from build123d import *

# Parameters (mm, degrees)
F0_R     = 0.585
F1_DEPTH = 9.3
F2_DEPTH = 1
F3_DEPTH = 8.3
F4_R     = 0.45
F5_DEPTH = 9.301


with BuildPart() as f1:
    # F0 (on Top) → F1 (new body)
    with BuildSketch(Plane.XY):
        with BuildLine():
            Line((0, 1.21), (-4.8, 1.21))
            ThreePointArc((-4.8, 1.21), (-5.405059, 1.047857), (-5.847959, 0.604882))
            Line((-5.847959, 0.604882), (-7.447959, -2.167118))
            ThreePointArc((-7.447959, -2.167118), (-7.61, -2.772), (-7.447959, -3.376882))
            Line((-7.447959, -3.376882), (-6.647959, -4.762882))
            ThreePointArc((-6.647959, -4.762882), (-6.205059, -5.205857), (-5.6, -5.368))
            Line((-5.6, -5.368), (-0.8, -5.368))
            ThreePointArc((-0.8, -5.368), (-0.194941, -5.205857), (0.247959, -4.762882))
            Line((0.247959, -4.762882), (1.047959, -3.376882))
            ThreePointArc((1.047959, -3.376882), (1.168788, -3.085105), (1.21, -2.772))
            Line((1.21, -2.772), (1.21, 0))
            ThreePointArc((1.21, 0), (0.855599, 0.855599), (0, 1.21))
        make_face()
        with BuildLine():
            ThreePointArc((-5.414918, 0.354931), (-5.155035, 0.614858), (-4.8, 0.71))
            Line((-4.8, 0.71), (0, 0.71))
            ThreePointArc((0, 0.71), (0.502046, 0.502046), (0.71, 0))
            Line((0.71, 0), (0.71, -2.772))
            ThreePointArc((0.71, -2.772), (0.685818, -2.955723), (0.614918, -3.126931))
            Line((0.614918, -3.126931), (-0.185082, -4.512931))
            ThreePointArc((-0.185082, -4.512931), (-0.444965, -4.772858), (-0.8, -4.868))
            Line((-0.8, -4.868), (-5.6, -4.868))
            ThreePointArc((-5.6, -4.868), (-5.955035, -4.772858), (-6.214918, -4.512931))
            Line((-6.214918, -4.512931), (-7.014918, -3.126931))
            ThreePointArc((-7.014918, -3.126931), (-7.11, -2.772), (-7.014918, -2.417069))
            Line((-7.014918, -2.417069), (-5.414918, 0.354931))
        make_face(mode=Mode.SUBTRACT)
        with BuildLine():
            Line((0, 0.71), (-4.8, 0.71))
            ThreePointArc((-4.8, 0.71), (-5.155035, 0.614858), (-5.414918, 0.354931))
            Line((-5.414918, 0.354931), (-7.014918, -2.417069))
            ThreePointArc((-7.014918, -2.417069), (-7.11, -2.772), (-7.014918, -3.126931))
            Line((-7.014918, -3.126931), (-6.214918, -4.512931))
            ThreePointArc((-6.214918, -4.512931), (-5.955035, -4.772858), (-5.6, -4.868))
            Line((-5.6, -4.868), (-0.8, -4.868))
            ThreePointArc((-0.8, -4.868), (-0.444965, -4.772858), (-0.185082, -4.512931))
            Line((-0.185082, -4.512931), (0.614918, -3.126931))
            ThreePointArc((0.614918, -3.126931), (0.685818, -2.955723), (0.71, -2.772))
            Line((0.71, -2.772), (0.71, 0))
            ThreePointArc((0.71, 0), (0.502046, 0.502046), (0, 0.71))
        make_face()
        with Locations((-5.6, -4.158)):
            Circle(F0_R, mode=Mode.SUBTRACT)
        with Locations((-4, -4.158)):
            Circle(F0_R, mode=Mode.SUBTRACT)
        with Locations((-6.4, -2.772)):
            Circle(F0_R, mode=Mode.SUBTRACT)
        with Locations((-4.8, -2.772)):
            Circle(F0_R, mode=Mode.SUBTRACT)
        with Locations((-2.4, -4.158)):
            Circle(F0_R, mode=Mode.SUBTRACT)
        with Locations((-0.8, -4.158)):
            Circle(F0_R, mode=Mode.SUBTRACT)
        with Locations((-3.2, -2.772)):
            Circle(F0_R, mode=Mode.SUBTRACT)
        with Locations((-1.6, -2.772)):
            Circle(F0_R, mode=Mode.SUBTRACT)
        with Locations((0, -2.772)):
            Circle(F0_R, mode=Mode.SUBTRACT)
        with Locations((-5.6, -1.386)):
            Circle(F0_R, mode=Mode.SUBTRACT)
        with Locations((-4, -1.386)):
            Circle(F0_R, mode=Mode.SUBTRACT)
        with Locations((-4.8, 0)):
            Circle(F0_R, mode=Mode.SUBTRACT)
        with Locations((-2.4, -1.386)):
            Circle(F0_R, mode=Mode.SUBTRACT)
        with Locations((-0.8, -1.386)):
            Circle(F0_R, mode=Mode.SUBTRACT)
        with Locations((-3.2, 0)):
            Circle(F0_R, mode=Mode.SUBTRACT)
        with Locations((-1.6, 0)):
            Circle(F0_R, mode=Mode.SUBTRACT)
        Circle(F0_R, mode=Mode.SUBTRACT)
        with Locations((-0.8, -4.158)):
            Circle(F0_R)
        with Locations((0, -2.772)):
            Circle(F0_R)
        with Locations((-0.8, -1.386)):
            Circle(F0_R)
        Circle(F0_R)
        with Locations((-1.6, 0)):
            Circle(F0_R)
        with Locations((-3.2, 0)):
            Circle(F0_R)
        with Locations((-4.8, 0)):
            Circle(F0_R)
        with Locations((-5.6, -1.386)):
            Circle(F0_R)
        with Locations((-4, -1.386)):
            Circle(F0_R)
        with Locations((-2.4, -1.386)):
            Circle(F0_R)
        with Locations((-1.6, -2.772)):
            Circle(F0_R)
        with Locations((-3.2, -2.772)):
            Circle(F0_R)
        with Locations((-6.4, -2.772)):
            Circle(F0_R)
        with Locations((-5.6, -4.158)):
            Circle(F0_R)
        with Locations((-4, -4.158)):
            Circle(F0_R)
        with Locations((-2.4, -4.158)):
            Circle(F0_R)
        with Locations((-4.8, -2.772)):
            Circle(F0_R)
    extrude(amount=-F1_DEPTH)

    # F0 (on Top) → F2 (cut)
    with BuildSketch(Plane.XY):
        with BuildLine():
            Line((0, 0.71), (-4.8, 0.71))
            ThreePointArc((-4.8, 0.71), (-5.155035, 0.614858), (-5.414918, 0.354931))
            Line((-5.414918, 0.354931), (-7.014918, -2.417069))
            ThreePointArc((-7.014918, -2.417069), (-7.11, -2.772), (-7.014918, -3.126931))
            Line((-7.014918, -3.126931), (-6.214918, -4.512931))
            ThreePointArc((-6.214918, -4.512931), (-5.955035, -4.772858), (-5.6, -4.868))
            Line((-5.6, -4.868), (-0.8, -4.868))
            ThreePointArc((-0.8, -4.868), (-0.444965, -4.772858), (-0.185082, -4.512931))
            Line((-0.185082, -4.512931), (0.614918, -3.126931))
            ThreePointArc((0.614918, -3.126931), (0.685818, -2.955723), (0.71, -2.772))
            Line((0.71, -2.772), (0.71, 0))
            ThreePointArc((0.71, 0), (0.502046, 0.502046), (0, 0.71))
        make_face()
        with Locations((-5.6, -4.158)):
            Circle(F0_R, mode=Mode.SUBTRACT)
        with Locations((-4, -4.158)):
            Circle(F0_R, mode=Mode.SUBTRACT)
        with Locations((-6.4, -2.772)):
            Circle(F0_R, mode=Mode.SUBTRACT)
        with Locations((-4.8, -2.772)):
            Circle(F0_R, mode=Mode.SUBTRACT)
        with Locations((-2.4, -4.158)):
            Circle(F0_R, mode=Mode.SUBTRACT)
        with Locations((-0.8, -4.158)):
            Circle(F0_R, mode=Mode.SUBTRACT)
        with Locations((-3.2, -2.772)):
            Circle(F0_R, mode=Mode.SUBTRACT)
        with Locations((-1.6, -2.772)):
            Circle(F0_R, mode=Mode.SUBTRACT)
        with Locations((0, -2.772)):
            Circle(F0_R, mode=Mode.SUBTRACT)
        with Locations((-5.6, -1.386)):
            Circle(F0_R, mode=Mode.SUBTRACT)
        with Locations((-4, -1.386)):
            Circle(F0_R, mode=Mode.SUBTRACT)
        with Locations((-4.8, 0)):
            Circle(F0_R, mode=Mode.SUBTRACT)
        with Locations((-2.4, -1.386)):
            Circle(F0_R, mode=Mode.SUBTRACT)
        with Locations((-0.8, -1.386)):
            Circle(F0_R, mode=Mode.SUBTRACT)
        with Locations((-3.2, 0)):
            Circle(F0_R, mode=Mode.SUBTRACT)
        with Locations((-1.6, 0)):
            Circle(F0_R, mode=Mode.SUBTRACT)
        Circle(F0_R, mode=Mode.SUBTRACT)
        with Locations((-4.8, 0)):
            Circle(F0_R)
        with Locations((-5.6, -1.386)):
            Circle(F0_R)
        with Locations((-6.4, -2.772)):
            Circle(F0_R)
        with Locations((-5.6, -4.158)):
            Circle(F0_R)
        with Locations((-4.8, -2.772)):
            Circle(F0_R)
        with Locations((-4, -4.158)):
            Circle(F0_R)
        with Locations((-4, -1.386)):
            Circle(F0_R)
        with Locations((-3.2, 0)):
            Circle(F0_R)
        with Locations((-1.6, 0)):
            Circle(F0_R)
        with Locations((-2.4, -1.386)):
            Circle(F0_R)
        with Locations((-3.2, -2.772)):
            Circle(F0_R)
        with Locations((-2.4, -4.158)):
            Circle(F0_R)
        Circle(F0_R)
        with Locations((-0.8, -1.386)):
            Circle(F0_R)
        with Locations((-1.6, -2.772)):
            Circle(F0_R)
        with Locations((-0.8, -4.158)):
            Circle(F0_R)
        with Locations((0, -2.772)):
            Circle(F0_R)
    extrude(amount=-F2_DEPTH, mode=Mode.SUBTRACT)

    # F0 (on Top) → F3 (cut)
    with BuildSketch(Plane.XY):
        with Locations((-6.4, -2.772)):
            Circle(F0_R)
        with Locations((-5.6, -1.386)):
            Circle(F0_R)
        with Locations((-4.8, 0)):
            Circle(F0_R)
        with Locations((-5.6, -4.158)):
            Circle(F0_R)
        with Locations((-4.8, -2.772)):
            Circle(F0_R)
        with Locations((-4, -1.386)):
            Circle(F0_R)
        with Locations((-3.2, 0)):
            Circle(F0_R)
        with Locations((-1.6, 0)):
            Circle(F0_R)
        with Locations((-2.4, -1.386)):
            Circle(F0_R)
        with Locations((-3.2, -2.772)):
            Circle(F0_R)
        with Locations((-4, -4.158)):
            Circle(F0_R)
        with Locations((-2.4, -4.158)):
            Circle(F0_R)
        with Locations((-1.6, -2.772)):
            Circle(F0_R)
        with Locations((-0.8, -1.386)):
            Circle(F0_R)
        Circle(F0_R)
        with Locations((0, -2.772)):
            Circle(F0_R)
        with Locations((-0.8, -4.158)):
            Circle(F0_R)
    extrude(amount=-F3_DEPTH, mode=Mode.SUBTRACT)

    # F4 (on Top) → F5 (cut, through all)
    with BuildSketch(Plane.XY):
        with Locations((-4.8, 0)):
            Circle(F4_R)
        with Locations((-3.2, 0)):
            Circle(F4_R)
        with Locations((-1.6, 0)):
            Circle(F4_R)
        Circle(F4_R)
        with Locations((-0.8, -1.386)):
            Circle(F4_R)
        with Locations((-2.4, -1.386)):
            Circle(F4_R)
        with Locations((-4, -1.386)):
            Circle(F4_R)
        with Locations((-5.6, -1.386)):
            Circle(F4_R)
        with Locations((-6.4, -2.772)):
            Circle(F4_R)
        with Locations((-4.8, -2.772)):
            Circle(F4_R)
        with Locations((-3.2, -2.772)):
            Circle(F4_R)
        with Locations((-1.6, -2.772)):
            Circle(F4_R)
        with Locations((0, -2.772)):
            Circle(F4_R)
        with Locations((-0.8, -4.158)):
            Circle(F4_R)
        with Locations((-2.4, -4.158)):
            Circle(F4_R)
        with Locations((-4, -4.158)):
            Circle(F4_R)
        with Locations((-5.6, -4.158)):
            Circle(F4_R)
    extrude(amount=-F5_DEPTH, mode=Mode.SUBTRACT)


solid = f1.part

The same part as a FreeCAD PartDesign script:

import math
import FreeCAD as App
import Part
import Sketcher

doc = App.newDocument("Part")
body = doc.addObject("PartDesign::Body", "Body")

sketch1 = doc.addObject("Sketcher::SketchObject", "Sketch")
body.addObject(sketch1)
sketch1.AttachmentSupport = (doc.XY_Plane, [""])
sketch1.MapMode = "FlatFace"
sketch1.addGeometry([
    Part.LineSegment(App.Vector(0, 1.2, 0), App.Vector(-4.8, 1.2, 0)),
    Part.ArcOfCircle(Part.Circle(App.Vector(-4.8, 0, 0), App.Vector(0, 0, 1), 1.2), math.radians(90), math.radians(150)),
    Part.LineSegment(App.Vector(-5.8, 0.6, 0), App.Vector(-7.4, -2.2, 0)),
    Part.ArcOfCircle(Part.Circle(App.Vector(-6.4, -2.8, 0), App.Vector(0, 0, 1), 1.2), math.radians(150), math.radians(210)),
    Part.LineSegment(App.Vector(-7.4, -3.4, 0), App.Vector(-6.6, -4.8, 0)),
    Part.ArcOfCircle(Part.Circle(App.Vector(-5.6, -4.2, 0), App.Vector(0, 0, 1), 1.2), math.radians(-150), math.radians(-90)),
    Part.LineSegment(App.Vector(-5.6, -5.4, 0), App.Vector(-0.8, -5.4, 0)),
    Part.ArcOfCircle(Part.Circle(App.Vector(-0.8, -4.2, 0), App.Vector(0, 0, 1), 1.2), math.radians(-90), math.radians(-30)),
    Part.LineSegment(App.Vector(0.2, -4.8, 0), App.Vector(1, -3.4, 0)),
    Part.ArcOfCircle(Part.Circle(App.Vector(0, -2.8, 0), App.Vector(0, 0, 1), 1.2), math.radians(-30), math.radians(0)),
    Part.LineSegment(App.Vector(1.2, -2.8, 0), App.Vector(1.2, 0, 0)),
    Part.ArcOfCircle(Part.Circle(App.Vector(0, 0, 0), App.Vector(0, 0, 1), 1.2), math.radians(0), math.radians(90)),
], False)
sketch1.addConstraint([
    Sketcher.Constraint("Tangent", 0, 2, 1, 1),
    Sketcher.Constraint("Tangent", 1, 2, 2, 1),
    Sketcher.Constraint("Tangent", 2, 2, 3, 1),
    Sketcher.Constraint("Tangent", 3, 2, 4, 1),
    Sketcher.Constraint("Tangent", 4, 2, 5, 1),
    Sketcher.Constraint("Tangent", 5, 2, 6, 1),
    Sketcher.Constraint("Tangent", 6, 2, 7, 1),
    Sketcher.Constraint("Tangent", 7, 2, 8, 1),
    Sketcher.Constraint("Tangent", 8, 2, 9, 1),
    Sketcher.Constraint("Tangent", 9, 2, 10, 1),
    Sketcher.Constraint("Tangent", 10, 2, 11, 1),
    Sketcher.Constraint("Tangent", 11, 2, 0, 1),
    Sketcher.Constraint("Horizontal", 0),
    Sketcher.Constraint("Horizontal", 6),
    Sketcher.Constraint("Vertical", 10),
    Sketcher.Constraint("Coincident", 11, 3, -1, 1),
    Sketcher.Constraint("Equal", 1, 5),
    Sketcher.Constraint("Equal", 5, 7),
    Sketcher.Constraint("Equal", 7, 9),
    Sketcher.Constraint("Equal", 9, 11),
    Sketcher.Constraint("Parallel", 2, 8),
    Sketcher.Constraint("Horizontal", 3, 3, 9, 3),
    Sketcher.Constraint("Horizontal", 4, 2, 7, 2),
    Sketcher.Constraint("Horizontal", 3, 2, 8, 2),
    Sketcher.Constraint("Equal", 0, 6),
    Sketcher.Constraint("Radius", 1, 1.209999),
    Sketcher.Constraint("DistanceX", 0, 2, 0, 1, 4.8),
    Sketcher.Constraint("DistanceX", 1, 3, 7, 3, 4.000002),
    Sketcher.Constraint("DistanceY", 10, 1, 10, 2, 2.772),
])
pad1 = doc.addObject("PartDesign::Pad", "Pad")
body.addObject(pad1)
pad1.Profile = sketch1
pad1.Length = 9.3
pad1.Reversed = True

sketch2 = doc.addObject("Sketcher::SketchObject", "Sketch001")
body.addObject(sketch2)
sketch2.AttachmentSupport = (doc.XY_Plane, [""])
sketch2.MapMode = "FlatFace"
sketch2.addGeometry([
    Part.LineSegment(App.Vector(0, 0.71, 0), App.Vector(-4.8, 0.71, 0)),
    Part.ArcOfCircle(Part.Circle(App.Vector(-4.8, 0, 0), App.Vector(0, 0, 1), 0.71), math.radians(90), math.radians(150)),
    Part.LineSegment(App.Vector(-5.41, 0.35, 0), App.Vector(-7.01, -2.42, 0)),
    Part.ArcOfCircle(Part.Circle(App.Vector(-6.4, -2.77, 0), App.Vector(0, 0, 1), 0.71), math.radians(150), math.radians(210)),
    Part.LineSegment(App.Vector(-7.01, -3.13, 0), App.Vector(-6.21, -4.51, 0)),
    Part.ArcOfCircle(Part.Circle(App.Vector(-5.6, -4.16, 0), App.Vector(0, 0, 1), 0.71), math.radians(-150), math.radians(-90)),
    Part.LineSegment(App.Vector(-5.6, -4.87, 0), App.Vector(-0.8, -4.87, 0)),
    Part.ArcOfCircle(Part.Circle(App.Vector(-0.8, -4.16, 0), App.Vector(0, 0, 1), 0.71), math.radians(-90), math.radians(-30)),
    Part.LineSegment(App.Vector(-0.19, -4.51, 0), App.Vector(0.61, -3.13, 0)),
    Part.ArcOfCircle(Part.Circle(App.Vector(0, -2.77, 0), App.Vector(0, 0, 1), 0.71), math.radians(-30), math.radians(0)),
    Part.LineSegment(App.Vector(0.71, -2.77, 0), App.Vector(0.71, 0, 0)),
    Part.ArcOfCircle(Part.Circle(App.Vector(0, 0, 0), App.Vector(0, 0, 1), 0.71), math.radians(0), math.radians(90)),
], False)
sketch2.addConstraint([
    Sketcher.Constraint("Tangent", 0, 2, 1, 1),
    Sketcher.Constraint("Tangent", 1, 2, 2, 1),
    Sketcher.Constraint("Tangent", 2, 2, 3, 1),
    Sketcher.Constraint("Tangent", 3, 2, 4, 1),
    Sketcher.Constraint("Tangent", 4, 2, 5, 1),
    Sketcher.Constraint("Tangent", 5, 2, 6, 1),
    Sketcher.Constraint("Tangent", 6, 2, 7, 1),
    Sketcher.Constraint("Tangent", 7, 2, 8, 1),
    Sketcher.Constraint("Coincident", 8, 2, 9, 1),
    Sketcher.Constraint("Coincident", 9, 2, 10, 1),
    Sketcher.Constraint("Tangent", 10, 2, 11, 1),
    Sketcher.Constraint("Tangent", 11, 2, 0, 1),
    Sketcher.Constraint("Horizontal", 0),
    Sketcher.Constraint("Horizontal", 6),
    Sketcher.Constraint("Vertical", 10),
    Sketcher.Constraint("Coincident", 11, 3, -1, 1),
    Sketcher.Constraint("Equal", 1, 3),
    Sketcher.Constraint("Equal", 3, 5),
    Sketcher.Constraint("Equal", 5, 7),
    Sketcher.Constraint("Equal", 7, 11),
    Sketcher.Constraint("Parallel", 2, 8),
    Sketcher.Constraint("Horizontal", 4, 2, 7, 2),
    Sketcher.Constraint("Horizontal", 3, 2, 8, 2),
    Sketcher.Constraint("Horizontal", 3, 3, 9, 2),
    Sketcher.Constraint("Equal", 0, 6),
    Sketcher.Constraint("Radius", 1, 0.709999),
    Sketcher.Constraint("DistanceX", 0, 2, 0, 1, 4.8),
    Sketcher.Constraint("DistanceX", 1, 3, 7, 3, 4.000001),
    Sketcher.Constraint("DistanceX", 3, 3, -1, 1, 6.399999),
    Sketcher.Constraint("DistanceY", 10, 1, 10, 2, 2.772),
    Sketcher.Constraint("Radius", 9, 0.709992),
])
pocket1 = doc.addObject("PartDesign::Pocket", "Pocket")
body.addObject(pocket1)
pocket1.Profile = sketch2
pocket1.Length = 1

sketch3 = doc.addObject("Sketcher::SketchObject", "Sketch002")
body.addObject(sketch3)
sketch3.AttachmentSupport = (doc.XY_Plane, [""])
sketch3.MapMode = "FlatFace"
sketch3.addGeometry([
    Part.Circle(App.Vector(-6.4, -2.8, 0), App.Vector(0, 0, 1), 0.6),
    Part.Circle(App.Vector(-5.6, -1.4, 0), App.Vector(0, 0, 1), 0.6),
    Part.Circle(App.Vector(-4.8, 0, 0), App.Vector(0, 0, 1), 0.6),
    Part.Circle(App.Vector(-5.6, -4.2, 0), App.Vector(0, 0, 1), 0.6),
    Part.Circle(App.Vector(-4.8, -2.8, 0), App.Vector(0, 0, 1), 0.6),
    Part.Circle(App.Vector(-4, -1.4, 0), App.Vector(0, 0, 1), 0.6),
    Part.Circle(App.Vector(-3.2, 0, 0), App.Vector(0, 0, 1), 0.6),
    Part.Circle(App.Vector(-1.6, 0, 0), App.Vector(0, 0, 1), 0.6),
    Part.Circle(App.Vector(-2.4, -1.4, 0), App.Vector(0, 0, 1), 0.6),
    Part.Circle(App.Vector(-3.2, -2.8, 0), App.Vector(0, 0, 1), 0.6),
    Part.Circle(App.Vector(-4, -4.2, 0), App.Vector(0, 0, 1), 0.6),
    Part.Circle(App.Vector(-2.4, -4.2, 0), App.Vector(0, 0, 1), 0.6),
    Part.Circle(App.Vector(-1.6, -2.8, 0), App.Vector(0, 0, 1), 0.6),
    Part.Circle(App.Vector(-0.8, -1.4, 0), App.Vector(0, 0, 1), 0.6),
    Part.Circle(App.Vector(0, 0, 0), App.Vector(0, 0, 1), 0.6),
    Part.Circle(App.Vector(0, -2.8, 0), App.Vector(0, 0, 1), 0.6),
    Part.Circle(App.Vector(-0.8, -4.2, 0), App.Vector(0, 0, 1), 0.6),
], False)
sketch3.addConstraint([
    Sketcher.Constraint("Coincident", 14, 3, -1, 1),
    Sketcher.Constraint("Equal", 0, 1),
    Sketcher.Constraint("Equal", 1, 2),
    Sketcher.Constraint("Equal", 2, 3),
    Sketcher.Constraint("Equal", 3, 4),
    Sketcher.Constraint("Equal", 4, 5),
    Sketcher.Constraint("Equal", 5, 6),
    Sketcher.Constraint("Equal", 6, 7),
    Sketcher.Constraint("Equal", 7, 8),
    Sketcher.Constraint("Equal", 8, 9),
    Sketcher.Constraint("Equal", 9, 10),
    Sketcher.Constraint("Equal", 10, 11),
    Sketcher.Constraint("Equal", 11, 12),
    Sketcher.Constraint("Equal", 12, 13),
    Sketcher.Constraint("Equal", 13, 14),
    Sketcher.Constraint("Equal", 14, 15),
    Sketcher.Constraint("Equal", 15, 16),
    Sketcher.Constraint("PointOnObject", 2, 3, -1),
    Sketcher.Constraint("PointOnObject", 6, 3, -1),
    Sketcher.Constraint("PointOnObject", 7, 3, -1),
    Sketcher.Constraint("PointOnObject", 15, 3, -2),
    Sketcher.Constraint("Horizontal", 0, 3, 4, 3),
    Sketcher.Constraint("Horizontal", 1, 3, 5, 3),
    Sketcher.Constraint("Horizontal", 5, 3, 8, 3),
    Sketcher.Constraint("Horizontal", 4, 3, 9, 3),
    Sketcher.Constraint("Horizontal", 3, 3, 10, 3),
    Sketcher.Constraint("Horizontal", 10, 3, 11, 3),
    Sketcher.Constraint("Horizontal", 9, 3, 12, 3),
    Sketcher.Constraint("Horizontal", 8, 3, 13, 3),
    Sketcher.Constraint("Horizontal", 12, 3, 15, 3),
    Sketcher.Constraint("Horizontal", 11, 3, 16, 3),
    Sketcher.Constraint("Vertical", 1, 3, 3, 3),
    Sketcher.Constraint("Vertical", 2, 3, 4, 3),
    Sketcher.Constraint("Vertical", 6, 3, 9, 3),
    Sketcher.Constraint("Vertical", 5, 3, 10, 3),
    Sketcher.Constraint("Vertical", 8, 3, 11, 3),
    Sketcher.Constraint("Vertical", 7, 3, 12, 3),
    Sketcher.Constraint("Vertical", 13, 3, 16, 3),
    Sketcher.Constraint("Diameter", 0, 1.17),
    Sketcher.Constraint("DistanceX", 5, 3, -1, 1, 4.0),
    Sketcher.Constraint("DistanceX", 1, 3, 7, 3, 4.0),
    Sketcher.Constraint("DistanceX", 0, 3, -1, 1, 6.4),
    Sketcher.Constraint("DistanceX", 1, 3, -1, 1, 5.6),
    Sketcher.Constraint("DistanceX", 2, 3, -1, 1, 4.8),
    Sketcher.Constraint("DistanceX", 6, 3, -1, 1, 3.2),
    Sketcher.Constraint("DistanceX", 8, 3, -1, 1, 2.4),
    Sketcher.Constraint("DistanceX", 13, 3, -1, 1, 0.8),
    Sketcher.Constraint("DistanceY", 0, 3, -1, 1, 2.772),
    Sketcher.Constraint("DistanceY", 1, 3, -1, 1, 1.386),
    Sketcher.Constraint("DistanceY", 3, 3, -1, 1, 4.158),
])
pocket2 = doc.addObject("PartDesign::Pocket", "Pocket001")
body.addObject(pocket2)
pocket2.Profile = sketch3
pocket2.Length = 8.3

sketch4 = doc.addObject("Sketcher::SketchObject", "Sketch003")
body.addObject(sketch4)
sketch4.AttachmentSupport = (doc.XY_Plane, [""])
sketch4.MapMode = "FlatFace"
sketch4.addGeometry([
    Part.Circle(App.Vector(-4.8, 0, 0), App.Vector(0, 0, 1), 0.45),
    Part.Circle(App.Vector(-3.2, 0, 0), App.Vector(0, 0, 1), 0.45),
    Part.Circle(App.Vector(-1.6, 0, 0), App.Vector(0, 0, 1), 0.45),
    Part.Circle(App.Vector(0, 0, 0), App.Vector(0, 0, 1), 0.45),
    Part.Circle(App.Vector(-0.8, -1.39, 0), App.Vector(0, 0, 1), 0.45),
    Part.Circle(App.Vector(-2.4, -1.39, 0), App.Vector(0, 0, 1), 0.45),
    Part.Circle(App.Vector(-4, -1.39, 0), App.Vector(0, 0, 1), 0.45),
    Part.Circle(App.Vector(-5.6, -1.39, 0), App.Vector(0, 0, 1), 0.45),
    Part.Circle(App.Vector(-6.4, -2.77, 0), App.Vector(0, 0, 1), 0.45),
    Part.Circle(App.Vector(-4.8, -2.77, 0), App.Vector(0, 0, 1), 0.45),
    Part.Circle(App.Vector(-3.2, -2.77, 0), App.Vector(0, 0, 1), 0.45),
    Part.Circle(App.Vector(-1.6, -2.77, 0), App.Vector(0, 0, 1), 0.45),
    Part.Circle(App.Vector(0, -2.77, 0), App.Vector(0, 0, 1), 0.45),
    Part.Circle(App.Vector(-0.8, -4.16, 0), App.Vector(0, 0, 1), 0.45),
    Part.Circle(App.Vector(-2.4, -4.16, 0), App.Vector(0, 0, 1), 0.45),
    Part.Circle(App.Vector(-4, -4.16, 0), App.Vector(0, 0, 1), 0.45),
    Part.Circle(App.Vector(-5.6, -4.16, 0), App.Vector(0, 0, 1), 0.45),
], False)
sketch4.addConstraint([
    Sketcher.Constraint("Coincident", 3, 3, -1, 1),
    Sketcher.Constraint("Equal", 0, 1),
    Sketcher.Constraint("Equal", 1, 2),
    Sketcher.Constraint("Equal", 2, 3),
    Sketcher.Constraint("Equal", 3, 4),
    Sketcher.Constraint("Equal", 4, 5),
    Sketcher.Constraint("Equal", 5, 6),
    Sketcher.Constraint("Equal", 6, 7),
    Sketcher.Constraint("Equal", 7, 8),
    Sketcher.Constraint("Equal", 8, 9),
    Sketcher.Constraint("Equal", 9, 10),
    Sketcher.Constraint("Equal", 10, 11),
    Sketcher.Constraint("Equal", 11, 12),
    Sketcher.Constraint("Equal", 12, 13),
    Sketcher.Constraint("Equal", 13, 14),
    Sketcher.Constraint("Equal", 14, 15),
    Sketcher.Constraint("Equal", 15, 16),
    Sketcher.Constraint("PointOnObject", 0, 3, -1),
    Sketcher.Constraint("PointOnObject", 1, 3, -1),
    Sketcher.Constraint("PointOnObject", 2, 3, -1),
    Sketcher.Constraint("PointOnObject", 12, 3, -2),
    Sketcher.Constraint("Horizontal", 4, 3, 5, 3),
    Sketcher.Constraint("Horizontal", 5, 3, 6, 3),
    Sketcher.Constraint("Horizontal", 6, 3, 7, 3),
    Sketcher.Constraint("Horizontal", 8, 3, 9, 3),
    Sketcher.Constraint("Horizontal", 9, 3, 10, 3),
    Sketcher.Constraint("Horizontal", 10, 3, 11, 3),
    Sketcher.Constraint("Horizontal", 11, 3, 12, 3),
    Sketcher.Constraint("Horizontal", 13, 3, 14, 3),
    Sketcher.Constraint("Horizontal", 14, 3, 15, 3),
    Sketcher.Constraint("Horizontal", 15, 3, 16, 3),
    Sketcher.Constraint("Vertical", 0, 3, 9, 3),
    Sketcher.Constraint("Vertical", 1, 3, 10, 3),
    Sketcher.Constraint("Vertical", 2, 3, 11, 3),
    Sketcher.Constraint("Vertical", 4, 3, 13, 3),
    Sketcher.Constraint("Vertical", 5, 3, 14, 3),
    Sketcher.Constraint("Vertical", 6, 3, 15, 3),
    Sketcher.Constraint("Vertical", 7, 3, 16, 3),
    Sketcher.Constraint("Diameter", 0, 0.9),
    Sketcher.Constraint("DistanceX", 6, 3, -1, 1, 4.0),
    Sketcher.Constraint("DistanceX", 0, 3, 4, 3, 4.0),
    Sketcher.Constraint("DistanceX", 7, 3, 2, 3, 4.0),
    Sketcher.Constraint("DistanceX", 8, 3, 5, 3, 4.0),
    Sketcher.Constraint("DistanceX", 0, 3, -1, 1, 4.8),
    Sketcher.Constraint("DistanceX", 1, 3, -1, 1, 3.2),
    Sketcher.Constraint("DistanceX", 2, 3, -1, 1, 1.6),
    Sketcher.Constraint("DistanceX", 5, 3, -1, 1, 2.4),
    Sketcher.Constraint("DistanceY", 4, 3, -1, 1, 1.386),
    Sketcher.Constraint("DistanceY", 8, 3, -1, 1, 2.772),
    Sketcher.Constraint("DistanceY", 13, 3, -1, 1, 4.158),
])
pocket3 = doc.addObject("PartDesign::Pocket", "Pocket002")
body.addObject(pocket3)
pocket3.Profile = sketch4
pocket3.Type = "ThroughAll"

doc.recompute()
